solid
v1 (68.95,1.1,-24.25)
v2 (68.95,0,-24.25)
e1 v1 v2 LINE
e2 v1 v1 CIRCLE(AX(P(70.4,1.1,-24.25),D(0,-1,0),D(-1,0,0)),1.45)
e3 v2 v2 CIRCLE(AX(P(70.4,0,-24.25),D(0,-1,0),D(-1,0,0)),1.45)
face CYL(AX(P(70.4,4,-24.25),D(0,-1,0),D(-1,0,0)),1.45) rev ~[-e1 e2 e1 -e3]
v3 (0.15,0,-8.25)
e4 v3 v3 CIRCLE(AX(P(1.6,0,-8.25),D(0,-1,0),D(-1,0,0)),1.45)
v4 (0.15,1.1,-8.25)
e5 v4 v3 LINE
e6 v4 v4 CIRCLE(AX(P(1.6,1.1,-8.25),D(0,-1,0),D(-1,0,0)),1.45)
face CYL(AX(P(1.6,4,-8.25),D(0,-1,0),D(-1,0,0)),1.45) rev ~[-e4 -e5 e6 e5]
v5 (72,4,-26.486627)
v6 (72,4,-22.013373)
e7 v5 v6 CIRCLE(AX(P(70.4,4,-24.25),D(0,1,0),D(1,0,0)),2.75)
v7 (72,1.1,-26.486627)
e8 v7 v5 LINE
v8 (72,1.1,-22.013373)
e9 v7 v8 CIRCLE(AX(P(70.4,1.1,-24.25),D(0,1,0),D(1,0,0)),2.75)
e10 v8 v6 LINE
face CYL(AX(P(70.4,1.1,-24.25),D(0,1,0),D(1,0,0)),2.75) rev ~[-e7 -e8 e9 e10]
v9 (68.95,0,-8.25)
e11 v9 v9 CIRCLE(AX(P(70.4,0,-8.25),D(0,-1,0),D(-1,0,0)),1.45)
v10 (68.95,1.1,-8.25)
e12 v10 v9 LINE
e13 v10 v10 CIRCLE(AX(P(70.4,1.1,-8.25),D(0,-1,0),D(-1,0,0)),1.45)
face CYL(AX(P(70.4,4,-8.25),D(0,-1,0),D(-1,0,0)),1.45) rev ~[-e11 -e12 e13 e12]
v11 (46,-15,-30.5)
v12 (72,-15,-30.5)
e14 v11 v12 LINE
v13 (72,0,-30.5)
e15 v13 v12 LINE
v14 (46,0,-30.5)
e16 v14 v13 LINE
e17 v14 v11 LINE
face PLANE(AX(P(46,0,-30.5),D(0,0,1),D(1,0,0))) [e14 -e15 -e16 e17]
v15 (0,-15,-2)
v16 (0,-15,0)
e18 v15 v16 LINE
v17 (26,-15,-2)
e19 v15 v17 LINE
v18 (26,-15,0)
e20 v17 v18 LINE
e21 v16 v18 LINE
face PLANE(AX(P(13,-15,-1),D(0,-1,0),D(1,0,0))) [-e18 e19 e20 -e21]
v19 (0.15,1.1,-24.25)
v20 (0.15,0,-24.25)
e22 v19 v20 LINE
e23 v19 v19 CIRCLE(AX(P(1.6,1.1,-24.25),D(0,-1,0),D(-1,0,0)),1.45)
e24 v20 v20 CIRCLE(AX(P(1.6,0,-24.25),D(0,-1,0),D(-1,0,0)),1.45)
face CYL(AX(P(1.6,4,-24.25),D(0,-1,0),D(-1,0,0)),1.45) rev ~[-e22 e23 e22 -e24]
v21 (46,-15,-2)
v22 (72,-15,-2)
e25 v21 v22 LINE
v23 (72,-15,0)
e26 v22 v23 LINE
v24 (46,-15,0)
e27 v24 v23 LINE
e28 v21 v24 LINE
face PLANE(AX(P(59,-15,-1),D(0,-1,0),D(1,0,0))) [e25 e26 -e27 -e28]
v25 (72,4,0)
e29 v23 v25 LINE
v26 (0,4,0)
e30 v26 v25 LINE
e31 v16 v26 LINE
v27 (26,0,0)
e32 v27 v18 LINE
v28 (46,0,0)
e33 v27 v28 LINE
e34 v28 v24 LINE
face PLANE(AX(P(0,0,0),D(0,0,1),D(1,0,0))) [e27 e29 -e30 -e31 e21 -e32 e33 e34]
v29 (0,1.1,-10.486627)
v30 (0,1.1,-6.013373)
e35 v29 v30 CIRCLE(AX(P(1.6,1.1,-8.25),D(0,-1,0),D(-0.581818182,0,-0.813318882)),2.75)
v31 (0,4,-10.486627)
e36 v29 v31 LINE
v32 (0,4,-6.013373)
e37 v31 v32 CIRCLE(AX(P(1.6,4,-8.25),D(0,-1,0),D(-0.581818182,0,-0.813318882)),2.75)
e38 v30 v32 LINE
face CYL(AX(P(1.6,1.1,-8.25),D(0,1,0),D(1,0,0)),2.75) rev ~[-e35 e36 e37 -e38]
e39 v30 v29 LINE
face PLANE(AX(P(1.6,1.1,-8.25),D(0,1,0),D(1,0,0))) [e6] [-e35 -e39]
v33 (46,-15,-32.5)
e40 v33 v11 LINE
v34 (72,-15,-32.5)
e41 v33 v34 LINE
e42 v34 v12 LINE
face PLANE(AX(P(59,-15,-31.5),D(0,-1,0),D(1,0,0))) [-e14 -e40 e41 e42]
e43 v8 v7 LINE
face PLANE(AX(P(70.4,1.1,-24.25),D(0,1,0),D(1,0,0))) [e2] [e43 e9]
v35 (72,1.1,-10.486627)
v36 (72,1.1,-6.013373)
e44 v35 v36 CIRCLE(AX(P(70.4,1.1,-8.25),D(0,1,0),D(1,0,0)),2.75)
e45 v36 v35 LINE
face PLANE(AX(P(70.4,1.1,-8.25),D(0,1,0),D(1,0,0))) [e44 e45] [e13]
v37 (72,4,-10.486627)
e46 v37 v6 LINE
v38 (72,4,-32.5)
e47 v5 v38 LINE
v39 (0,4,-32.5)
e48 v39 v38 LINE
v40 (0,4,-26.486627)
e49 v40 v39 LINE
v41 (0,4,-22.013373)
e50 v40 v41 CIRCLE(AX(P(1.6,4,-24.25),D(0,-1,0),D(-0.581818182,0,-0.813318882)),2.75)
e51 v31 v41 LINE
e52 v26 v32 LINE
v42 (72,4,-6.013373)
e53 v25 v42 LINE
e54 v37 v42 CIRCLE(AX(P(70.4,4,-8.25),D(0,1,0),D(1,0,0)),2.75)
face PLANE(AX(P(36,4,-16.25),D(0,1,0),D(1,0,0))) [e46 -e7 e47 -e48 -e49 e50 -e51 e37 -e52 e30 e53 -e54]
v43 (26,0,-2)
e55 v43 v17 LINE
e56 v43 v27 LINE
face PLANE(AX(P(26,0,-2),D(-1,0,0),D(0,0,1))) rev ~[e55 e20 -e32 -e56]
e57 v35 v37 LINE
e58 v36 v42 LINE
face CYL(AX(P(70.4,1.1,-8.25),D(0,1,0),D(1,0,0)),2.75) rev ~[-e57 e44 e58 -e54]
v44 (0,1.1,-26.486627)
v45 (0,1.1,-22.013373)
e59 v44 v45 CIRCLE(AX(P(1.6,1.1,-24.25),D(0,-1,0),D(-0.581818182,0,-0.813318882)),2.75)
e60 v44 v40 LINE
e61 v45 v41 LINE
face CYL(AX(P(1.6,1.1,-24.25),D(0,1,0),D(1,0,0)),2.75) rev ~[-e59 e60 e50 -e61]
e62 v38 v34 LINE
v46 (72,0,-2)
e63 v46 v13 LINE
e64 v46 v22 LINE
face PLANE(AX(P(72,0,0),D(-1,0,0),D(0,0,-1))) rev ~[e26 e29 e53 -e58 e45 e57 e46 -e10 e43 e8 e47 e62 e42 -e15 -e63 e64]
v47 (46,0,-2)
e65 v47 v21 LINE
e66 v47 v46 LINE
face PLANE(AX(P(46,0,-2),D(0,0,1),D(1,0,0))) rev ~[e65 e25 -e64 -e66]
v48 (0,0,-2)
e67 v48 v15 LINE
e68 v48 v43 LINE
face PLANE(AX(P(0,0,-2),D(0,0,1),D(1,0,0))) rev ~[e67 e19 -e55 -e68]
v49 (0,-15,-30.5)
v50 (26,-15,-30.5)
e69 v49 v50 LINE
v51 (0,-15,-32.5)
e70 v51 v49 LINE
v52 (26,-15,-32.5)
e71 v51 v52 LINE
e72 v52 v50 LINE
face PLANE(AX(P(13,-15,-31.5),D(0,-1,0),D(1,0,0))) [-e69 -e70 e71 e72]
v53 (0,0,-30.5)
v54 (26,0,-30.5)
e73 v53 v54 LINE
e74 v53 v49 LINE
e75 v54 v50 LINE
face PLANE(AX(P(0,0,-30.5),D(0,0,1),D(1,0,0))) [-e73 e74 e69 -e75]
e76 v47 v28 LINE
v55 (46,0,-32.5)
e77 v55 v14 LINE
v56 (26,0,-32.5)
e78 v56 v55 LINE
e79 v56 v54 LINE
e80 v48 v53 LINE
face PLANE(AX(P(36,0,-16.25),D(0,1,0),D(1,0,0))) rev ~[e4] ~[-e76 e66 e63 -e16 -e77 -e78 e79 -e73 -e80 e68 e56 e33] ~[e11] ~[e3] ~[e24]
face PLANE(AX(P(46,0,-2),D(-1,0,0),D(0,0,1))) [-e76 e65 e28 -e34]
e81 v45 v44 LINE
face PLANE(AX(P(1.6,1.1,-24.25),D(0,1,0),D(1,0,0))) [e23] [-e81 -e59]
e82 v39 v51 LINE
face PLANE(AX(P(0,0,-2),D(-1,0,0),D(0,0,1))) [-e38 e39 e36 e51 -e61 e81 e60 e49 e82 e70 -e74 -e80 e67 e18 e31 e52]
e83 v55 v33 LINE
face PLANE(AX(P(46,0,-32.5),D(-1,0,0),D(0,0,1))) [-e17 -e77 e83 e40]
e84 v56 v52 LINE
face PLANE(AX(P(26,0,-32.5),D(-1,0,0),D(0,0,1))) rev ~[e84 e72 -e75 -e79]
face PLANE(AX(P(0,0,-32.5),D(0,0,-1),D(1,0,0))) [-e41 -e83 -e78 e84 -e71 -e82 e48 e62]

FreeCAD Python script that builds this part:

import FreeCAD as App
import Part
import Sketcher
from FreeCAD import Vector


def add_polygon(sketch, points):
    """Adds a closed chain of lines whose ends are joined by coincident constraints."""
    first, n = sketch.GeometryCount, len(points)
    for a, b in zip(points, points[1:] + points[:1]):
        sketch.addGeometry(Part.LineSegment(App.Vector(*a, 0), App.Vector(*b, 0)), False)
    for i in range(n):
        sketch.addConstraint(Sketcher.Constraint("Coincident", first + i, 2, first + (i + 1) % n, 1))

doc = App.newDocument("Part")
body = doc.addObject("PartDesign::Body", "Body")

# Sketch on XZ plane
sketch1 = body.newObject("Sketcher::SketchObject", "Sketch")
sketch1.AttachmentSupport = (doc.getObject("XZ_Plane"), [""])
sketch1.MapMode = "FlatFace"
add_polygon(sketch1, [(0, -32.5), (0, 0), (72, 0), (72, -32.5)])  # lines 0-3
sketch1.addConstraint([
    Sketcher.Constraint("Vertical", 0),
    Sketcher.Constraint("Horizontal", 1),
    Sketcher.Constraint("Vertical", 2),
    Sketcher.Constraint("Horizontal", 3),
    Sketcher.Constraint("Coincident", 0, 2, -1, 1),
    Sketcher.Constraint("DistanceX", 1, 1, 1, 2, 72.0),
    Sketcher.Constraint("DistanceY", 0, 1, 0, 2, 32.5),
])
pad1 = body.newObject("PartDesign::Pad", "Pad")
pad1.Profile = sketch1
pad1.Length = 4
pad1.Reversed = True

# Sketch on XZ plane
sketch2 = body.newObject("Sketcher::SketchObject", "Sketch001")
sketch2.AttachmentSupport = (doc.getObject("XZ_Plane"), [""])
sketch2.MapMode = "FlatFace"
sketch2.AttachmentOffset = App.Placement(Vector(0, 0, -4), App.Rotation())
sketch2.addGeometry([
    Part.Circle(Vector(-10.4, -24.25, 0), Vector(0, 0, 1), 1.45),  # 0
    Part.Circle(Vector(1.6, -24.25, 0), Vector(0, 0, 1), 1.45),  # 1
    Part.Circle(Vector(1.6, -8.25, 0), Vector(0, 0, 1), 1.45),  # 2
    Part.Circle(Vector(-10.4, -8.25, 0), Vector(0, 0, 1), 1.45),  # 3
    Part.Circle(Vector(82.4, -8.25, 0), Vector(0, 0, 1), 1.45),  # 4
    Part.Circle(Vector(70.4, -8.25, 0), Vector(0, 0, 1), 1.45),  # 5
    Part.Circle(Vector(70.4, -24.25, 0), Vector(0, 0, 1), 1.45),  # 6
    Part.Circle(Vector(82.4, -24.25, 0), Vector(0, 0, 1), 1.45),  # 7
], False)
sketch2.addConstraint([
    Sketcher.Constraint("Equal", 0, 1),
    Sketcher.Constraint("Equal", 1, 2),
    Sketcher.Constraint("Equal", 2, 3),
    Sketcher.Constraint("Equal", 3, 4),
    Sketcher.Constraint("Equal", 4, 5),
    Sketcher.Constraint("Equal", 5, 6),
    Sketcher.Constraint("Equal", 6, 7),
    Sketcher.Constraint("Horizontal", 0, 3, 1, 3),
    Sketcher.Constraint("Horizontal", 2, 3, 3, 3),
    Sketcher.Constraint("Horizontal", 3, 3, 4, 3),
    Sketcher.Constraint("Horizontal", 4, 3, 5, 3),
    Sketcher.Constraint("Horizontal", 1, 3, 6, 3),
    Sketcher.Constraint("Horizontal", 6, 3, 7, 3),
    Sketcher.Constraint("Vertical", 1, 3, 2, 3),
    Sketcher.Constraint("Vertical", 0, 3, 3, 3),
    Sketcher.Constraint("Vertical", 5, 3, 6, 3),
    Sketcher.Constraint("Vertical", 4, 3, 7, 3),
    Sketcher.Constraint("Diameter", 0, 2.9),
    Sketcher.Constraint("DistanceX", 0, 3, 1, 3, 12.0),
    Sketcher.Constraint("DistanceY", 1, 3, 2, 3, 16.0),
    Sketcher.Constraint("DistanceX", 5, 3, 4, 3, 12.0),
    Sketcher.Constraint("DistanceX", 0, 3, -1, 1, 10.4),
    Sketcher.Constraint("DistanceX", -1, 1, 4, 3, 82.4),
    Sketcher.Constraint("DistanceY", 0, 3, -1, 1, 24.25),
])
doc.recompute()
hole = body.newObject("PartDesign::Hole", "Hole")
hole.Profile = sketch2
hole.ThreadType = "None"
hole.Diameter = 2.9
hole.DepthType = "ThroughAll"
hole.HoleCutType = "Counterbore"
hole.HoleCutDiameter = 5.5
hole.HoleCutDepth = 2.9
hole.Reversed = True

# Sketch on XZ plane
sketch3 = body.newObject("Sketcher::SketchObject", "Sketch002")
sketch3.AttachmentSupport = (doc.getObject("XZ_Plane"), [""])
sketch3.MapMode = "FlatFace"
add_polygon(sketch3, [(0, 0), (0, -2), (26, -2), (26, 0)])  # lines 0-3
add_polygon(sketch3, [(0, -30.5), (0, -32.5), (26, -32.5), (26, -30.5)])  # lines 4-7
add_polygon(sketch3, [(46, 0), (46, -2), (72, -2), (72, 0)])  # lines 8-11
add_polygon(sketch3, [(46, -30.5), (46, -32.5), (72, -32.5), (72, -30.5)])  # lines 12-15
sketch3.addConstraint([
    Sketcher.Constraint("Vertical", 0),
    Sketcher.Constraint("Horizontal", 1),
    Sketcher.Constraint("Vertical", 2),
    Sketcher.Constraint("Horizontal", 3),
    Sketcher.Constraint("Vertical", 4),
    Sketcher.Constraint("Horizontal", 5),
    Sketcher.Constraint("Vertical", 6),
    Sketcher.Constraint("Horizontal", 7),
    Sketcher.Constraint("Vertical", 8),
    Sketcher.Constraint("Horizontal", 9),
    Sketcher.Constraint("Vertical", 10),
    Sketcher.Constraint("Horizontal", 11),
    Sketcher.Constraint("Vertical", 12),
    Sketcher.Constraint("Horizontal", 13),
    Sketcher.Constraint("Vertical", 14),
    Sketcher.Constraint("Horizontal", 15),
    Sketcher.Constraint("Coincident", 3, 2, -1, 1),
    Sketcher.Constraint("PointOnObject", 4, 2, -2),
    Sketcher.Constraint("PointOnObject", 10, 2, -1),
    Sketcher.Constraint("Horizontal", 1, 2, 8, 2),
    Sketcher.Constraint("Horizontal", 5, 2, 12, 2),
    Sketcher.Constraint("Horizontal", 7, 2, 14, 2),
    Sketcher.Constraint("Vertical", 2, 2, 5, 2),
    Sketcher.Constraint("Vertical", 11, 2, 12, 2),
    Sketcher.Constraint("Vertical", 10, 2, 13, 2),
    Sketcher.Constraint("Equal", 7, 9),
    Sketcher.Constraint("Equal", 2, 4),
    Sketcher.Constraint("DistanceX", 1, 1, 1, 2, 26.0),
    Sketcher.Constraint("DistanceY", 0, 2, 0, 1, 2.0),
    Sketcher.Constraint("DistanceX", -1, 1, 8, 2, 46.0),
    Sketcher.Constraint("DistanceY", 4, 2, -1, 1, 32.5),
])
pad2 = body.newObject("PartDesign::Pad", "Pad001")
pad2.Profile = sketch3
pad2.Length = 15

doc.recompute()
